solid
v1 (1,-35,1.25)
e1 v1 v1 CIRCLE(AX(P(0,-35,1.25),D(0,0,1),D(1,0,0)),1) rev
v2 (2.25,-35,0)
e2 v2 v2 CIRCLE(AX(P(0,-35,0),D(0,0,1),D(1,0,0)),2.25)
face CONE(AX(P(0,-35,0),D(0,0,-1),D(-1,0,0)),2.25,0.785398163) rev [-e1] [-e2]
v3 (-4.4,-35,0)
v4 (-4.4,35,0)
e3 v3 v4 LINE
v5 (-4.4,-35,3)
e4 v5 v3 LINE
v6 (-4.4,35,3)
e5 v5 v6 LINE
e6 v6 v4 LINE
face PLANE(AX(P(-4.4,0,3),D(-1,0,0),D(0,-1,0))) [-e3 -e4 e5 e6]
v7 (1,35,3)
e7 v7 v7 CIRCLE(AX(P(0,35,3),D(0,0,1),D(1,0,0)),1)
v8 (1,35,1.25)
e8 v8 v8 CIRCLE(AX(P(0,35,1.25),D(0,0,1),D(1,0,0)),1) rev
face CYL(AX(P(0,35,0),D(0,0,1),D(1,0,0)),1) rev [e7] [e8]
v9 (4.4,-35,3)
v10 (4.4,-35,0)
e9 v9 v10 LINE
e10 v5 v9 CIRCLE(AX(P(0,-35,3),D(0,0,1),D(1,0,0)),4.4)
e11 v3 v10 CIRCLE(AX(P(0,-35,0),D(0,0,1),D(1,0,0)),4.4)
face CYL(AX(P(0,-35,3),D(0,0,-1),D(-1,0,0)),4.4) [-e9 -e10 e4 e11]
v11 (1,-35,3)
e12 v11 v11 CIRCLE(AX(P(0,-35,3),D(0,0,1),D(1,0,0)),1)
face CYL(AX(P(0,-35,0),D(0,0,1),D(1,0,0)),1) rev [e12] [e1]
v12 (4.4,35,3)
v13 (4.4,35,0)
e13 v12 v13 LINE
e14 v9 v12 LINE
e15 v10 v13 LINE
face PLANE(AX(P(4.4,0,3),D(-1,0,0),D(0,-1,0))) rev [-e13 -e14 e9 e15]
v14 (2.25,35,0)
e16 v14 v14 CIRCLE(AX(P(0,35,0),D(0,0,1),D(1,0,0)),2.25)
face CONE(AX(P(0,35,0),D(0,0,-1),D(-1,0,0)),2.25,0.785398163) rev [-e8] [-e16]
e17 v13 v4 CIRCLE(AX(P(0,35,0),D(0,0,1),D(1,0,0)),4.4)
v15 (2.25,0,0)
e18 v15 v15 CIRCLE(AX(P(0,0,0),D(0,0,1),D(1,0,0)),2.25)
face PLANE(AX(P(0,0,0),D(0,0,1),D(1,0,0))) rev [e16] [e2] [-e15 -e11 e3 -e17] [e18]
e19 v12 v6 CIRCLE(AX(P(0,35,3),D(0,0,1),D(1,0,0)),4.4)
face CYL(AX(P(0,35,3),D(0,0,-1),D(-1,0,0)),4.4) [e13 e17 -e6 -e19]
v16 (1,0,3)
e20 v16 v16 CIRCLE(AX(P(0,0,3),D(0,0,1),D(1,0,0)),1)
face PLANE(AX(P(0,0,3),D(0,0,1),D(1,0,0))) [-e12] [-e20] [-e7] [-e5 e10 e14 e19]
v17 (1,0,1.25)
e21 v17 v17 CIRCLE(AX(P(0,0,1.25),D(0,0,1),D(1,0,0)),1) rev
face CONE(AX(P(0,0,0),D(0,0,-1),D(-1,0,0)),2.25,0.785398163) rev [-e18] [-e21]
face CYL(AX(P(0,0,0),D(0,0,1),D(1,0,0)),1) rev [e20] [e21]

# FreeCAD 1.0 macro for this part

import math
import FreeCAD as App
import Part
import Sketcher
from FreeCAD import Vector
Q = App.Units.Quantity


def edges_at(feature, points):
    """Names of the edges that pass closest to the given points."""
    edges = feature.Shape.Edges
    near = lambda p: min(range(len(edges)), key=lambda i: edges[i].distToShape(Part.Vertex(*p))[0])
    return sorted({f"Edge{near(p) + 1}" for p in points})

doc = App.newDocument("Part")
body = doc.addObject("PartDesign::Body", "Body")

sketch1 = doc.addObject("Sketcher::SketchObject", "Sketch")
body.addObject(sketch1)
sketch1.AttachmentSupport = (doc.XY_Plane, [""])
sketch1.MapMode = "FlatFace"
sketch1.addGeometry([
    Part.LineSegment(Vector(-4.4, 35, 0), Vector(-4.4, -35, 0)),
    Part.ArcOfCircle(Part.Circle(Vector(0, -35, 0), Vector(0, 0, 1), 4.4), math.radians(180), math.radians(360)),
    Part.LineSegment(Vector(4.4, -35, 0), Vector(4.4, 35, 0)),
    Part.ArcOfCircle(Part.Circle(Vector(0, 35, 0), Vector(0, 0, 1), 4.4), math.radians(0), math.radians(180)),
], False)
sketch1.addConstraint([
    Sketcher.Constraint("Tangent", 0, 2, 1, 1),
    Sketcher.Constraint("Tangent", 1, 2, 2, 1),
    Sketcher.Constraint("Tangent", 2, 2, 3, 1),
    Sketcher.Constraint("Tangent", 3, 2, 0, 1),
    Sketcher.Constraint("Vertical", 0),
    Sketcher.Constraint("Vertical", 2),
    Sketcher.Constraint("Symmetric", 1, 3, 3, 3, -1, 1),
    Sketcher.Constraint("Radius", 1, Q("4.4 mm")),
    Sketcher.Constraint("DistanceY", 0, 2, 0, 1, Q("70 mm")),
])
pad1 = doc.addObject("PartDesign::Pad", "Pad")
body.addObject(pad1)
pad1.Profile = sketch1
pad1.Length = 3

sketch2 = doc.addObject("Sketcher::SketchObject", "Sketch001")
body.addObject(sketch2)
sketch2.AttachmentSupport = (doc.XY_Plane, [""])
sketch2.MapMode = "FlatFace"
sketch2.AttachmentOffset = App.Placement(Vector(0, 0, 3), App.Rotation())
sketch2.addGeometry([
    Part.Circle(Vector(0, 35, 0), Vector(0, 0, 1), 1),
    Part.Circle(Vector(0, -35, 0), Vector(0, 0, 1), 1),
    Part.Circle(Vector(0, 0, 0), Vector(0, 0, 1), 1),
], False)
sketch2.addConstraint([
    Sketcher.Constraint("Coincident", 2, 3, -1, 1),
    Sketcher.Constraint("Equal", 0, 1),
    Sketcher.Constraint("Equal", 1, 2),
    Sketcher.Constraint("Symmetric", 0, 3, 1, 3, -1, 1),
    Sketcher.Constraint("PointOnObject", 0, 3, -2),
    Sketcher.Constraint("Diameter", 0, Q("2 mm")),
    Sketcher.Constraint("DistanceY", -1, 1, 0, 3, Q("35 mm")),
])
pocket1 = doc.addObject("PartDesign::Pocket", "Pocket")
body.addObject(pocket1)
pocket1.Profile = sketch2
pocket1.Length = 3
doc.recompute()

chamfer = doc.addObject("PartDesign::Chamfer", "Chamfer")
body.addObject(chamfer)
chamfer.Base = (pocket1, edges_at(pocket1, [(-1, 35, 0), (-1, -35, 0), (-1, 0, 0)]))
chamfer.Size = 1.25

doc.recompute()
